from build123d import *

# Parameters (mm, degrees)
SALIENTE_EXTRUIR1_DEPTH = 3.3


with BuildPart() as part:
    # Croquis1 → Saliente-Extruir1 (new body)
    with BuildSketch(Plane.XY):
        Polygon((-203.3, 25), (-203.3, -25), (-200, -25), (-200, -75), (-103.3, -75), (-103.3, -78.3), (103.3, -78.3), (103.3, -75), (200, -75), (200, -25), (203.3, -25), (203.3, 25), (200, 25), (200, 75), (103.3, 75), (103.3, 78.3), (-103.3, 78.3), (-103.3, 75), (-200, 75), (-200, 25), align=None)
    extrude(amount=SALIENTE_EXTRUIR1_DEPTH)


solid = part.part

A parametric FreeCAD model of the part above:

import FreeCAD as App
import Part
import Sketcher


def add_polygon(sketch, points):
    """Adds a closed chain of lines whose ends are joined by coincident constraints."""
    first, n = sketch.GeometryCount, len(points)
    for a, b in zip(points, points[1:] + points[:1]):
        sketch.addGeometry(Part.LineSegment(App.Vector(*a, 0), App.Vector(*b, 0)), False)
    for i in range(n):
        sketch.addConstraint(Sketcher.Constraint("Coincident", first + i, 2, first + (i + 1) % n, 1))

doc = App.newDocument("Part")
params = doc.addObject("Spreadsheet::Sheet", "Params")
for row, (alias, value) in enumerate([
    ("sketch1_height", "50 mm"),
    ("sketch1_width", "3.3 mm"),
    ("sketch1_width2", "96.7 mm"),
    ("sketch1_width3", "206.6 mm"),
    ("pad1_length", "3.3 mm"),
], start=1):
    params.set(f"A{row}", alias)
    params.set(f"B{row}", "=" + value)
    params.setAlias(f"B{row}", alias)

body = doc.addObject("PartDesign::Body", "Body")

# Sketch on XY plane
sketch1 = body.newObject("Sketcher::SketchObject", "Sketch")
sketch1.AttachmentSupport = (doc.getObject("XY_Plane"), [""])
sketch1.MapMode = "FlatFace"
add_polygon(sketch1, [(-203.3, 25), (-203.3, -25), (-200, -25), (-200, -75), (-103.3, -75), (-103.3, -78.3), (103.3, -78.3), (103.3, -75), (200, -75), (200, -25), (203.3, -25), (203.3, 25), (200, 25), (200, 75), (103.3, 75), (103.3, 78.3), (-103.3, 78.3), (-103.3, 75), (-200, 75), (-200, 25)])  # lines 0-19
sketch1.addConstraint([
    Sketcher.Constraint("Vertical", 0),
    Sketcher.Constraint("Horizontal", 1),
    Sketcher.Constraint("Vertical", 2),
    Sketcher.Constraint("Horizontal", 3),
    Sketcher.Constraint("Vertical", 4),
    Sketcher.Constraint("Horizontal", 5),
    Sketcher.Constraint("Vertical", 6),
    Sketcher.Constraint("Horizontal", 7),
    Sketcher.Constraint("Vertical", 8),
    Sketcher.Constraint("Horizontal", 9),
    Sketcher.Constraint("Vertical", 10),
    Sketcher.Constraint("Horizontal", 11),
    Sketcher.Constraint("Vertical", 12),
    Sketcher.Constraint("Horizontal", 13),
    Sketcher.Constraint("Vertical", 14),
    Sketcher.Constraint("Horizontal", 15),
    Sketcher.Constraint("Vertical", 16),
    Sketcher.Constraint("Horizontal", 17),
    Sketcher.Constraint("Vertical", 18),
    Sketcher.Constraint("Horizontal", 19),
    Sketcher.Constraint("Symmetric", 0, 2, 10, 2, -1, 1),
    Sketcher.Constraint("Symmetric", 2, 2, 12, 2, -1, 1),
    Sketcher.Constraint("Symmetric", 4, 2, 14, 2, -1, 1),
    Sketcher.Constraint("Symmetric", 6, 2, 16, 2, -1, 1),
    Sketcher.Constraint("Symmetric", 8, 2, 18, 2, -1, 1),
    Sketcher.Constraint("Symmetric", 3, 2, 6, 2, -2),
    Sketcher.Constraint("Symmetric", 1, 2, 8, 2, -2),
    Sketcher.Constraint("Equal", 0, 2),
    Sketcher.Constraint("Equal", 19, 4),
    Sketcher.Constraint("DistanceY", 0, 2, 0, 1, 50.0),
    Sketcher.Constraint("DistanceX", 1, 1, 1, 2, 3.3),
    Sketcher.Constraint("DistanceX", 3, 1, 3, 2, 96.7),
    Sketcher.Constraint("DistanceX", 5, 1, 5, 2, 206.6),
])
sketch1.setExpression("Constraints[49]", "Params.sketch1_height")
sketch1.setExpression("Constraints[50]", "Params.sketch1_width")
sketch1.setExpression("Constraints[51]", "Params.sketch1_width2")
sketch1.setExpression("Constraints[52]", "Params.sketch1_width3")
pad1 = body.newObject("PartDesign::Pad", "Pad")
pad1.Profile = sketch1
pad1.setExpression("Length", "Params.pad1_length")

doc.recompute()
